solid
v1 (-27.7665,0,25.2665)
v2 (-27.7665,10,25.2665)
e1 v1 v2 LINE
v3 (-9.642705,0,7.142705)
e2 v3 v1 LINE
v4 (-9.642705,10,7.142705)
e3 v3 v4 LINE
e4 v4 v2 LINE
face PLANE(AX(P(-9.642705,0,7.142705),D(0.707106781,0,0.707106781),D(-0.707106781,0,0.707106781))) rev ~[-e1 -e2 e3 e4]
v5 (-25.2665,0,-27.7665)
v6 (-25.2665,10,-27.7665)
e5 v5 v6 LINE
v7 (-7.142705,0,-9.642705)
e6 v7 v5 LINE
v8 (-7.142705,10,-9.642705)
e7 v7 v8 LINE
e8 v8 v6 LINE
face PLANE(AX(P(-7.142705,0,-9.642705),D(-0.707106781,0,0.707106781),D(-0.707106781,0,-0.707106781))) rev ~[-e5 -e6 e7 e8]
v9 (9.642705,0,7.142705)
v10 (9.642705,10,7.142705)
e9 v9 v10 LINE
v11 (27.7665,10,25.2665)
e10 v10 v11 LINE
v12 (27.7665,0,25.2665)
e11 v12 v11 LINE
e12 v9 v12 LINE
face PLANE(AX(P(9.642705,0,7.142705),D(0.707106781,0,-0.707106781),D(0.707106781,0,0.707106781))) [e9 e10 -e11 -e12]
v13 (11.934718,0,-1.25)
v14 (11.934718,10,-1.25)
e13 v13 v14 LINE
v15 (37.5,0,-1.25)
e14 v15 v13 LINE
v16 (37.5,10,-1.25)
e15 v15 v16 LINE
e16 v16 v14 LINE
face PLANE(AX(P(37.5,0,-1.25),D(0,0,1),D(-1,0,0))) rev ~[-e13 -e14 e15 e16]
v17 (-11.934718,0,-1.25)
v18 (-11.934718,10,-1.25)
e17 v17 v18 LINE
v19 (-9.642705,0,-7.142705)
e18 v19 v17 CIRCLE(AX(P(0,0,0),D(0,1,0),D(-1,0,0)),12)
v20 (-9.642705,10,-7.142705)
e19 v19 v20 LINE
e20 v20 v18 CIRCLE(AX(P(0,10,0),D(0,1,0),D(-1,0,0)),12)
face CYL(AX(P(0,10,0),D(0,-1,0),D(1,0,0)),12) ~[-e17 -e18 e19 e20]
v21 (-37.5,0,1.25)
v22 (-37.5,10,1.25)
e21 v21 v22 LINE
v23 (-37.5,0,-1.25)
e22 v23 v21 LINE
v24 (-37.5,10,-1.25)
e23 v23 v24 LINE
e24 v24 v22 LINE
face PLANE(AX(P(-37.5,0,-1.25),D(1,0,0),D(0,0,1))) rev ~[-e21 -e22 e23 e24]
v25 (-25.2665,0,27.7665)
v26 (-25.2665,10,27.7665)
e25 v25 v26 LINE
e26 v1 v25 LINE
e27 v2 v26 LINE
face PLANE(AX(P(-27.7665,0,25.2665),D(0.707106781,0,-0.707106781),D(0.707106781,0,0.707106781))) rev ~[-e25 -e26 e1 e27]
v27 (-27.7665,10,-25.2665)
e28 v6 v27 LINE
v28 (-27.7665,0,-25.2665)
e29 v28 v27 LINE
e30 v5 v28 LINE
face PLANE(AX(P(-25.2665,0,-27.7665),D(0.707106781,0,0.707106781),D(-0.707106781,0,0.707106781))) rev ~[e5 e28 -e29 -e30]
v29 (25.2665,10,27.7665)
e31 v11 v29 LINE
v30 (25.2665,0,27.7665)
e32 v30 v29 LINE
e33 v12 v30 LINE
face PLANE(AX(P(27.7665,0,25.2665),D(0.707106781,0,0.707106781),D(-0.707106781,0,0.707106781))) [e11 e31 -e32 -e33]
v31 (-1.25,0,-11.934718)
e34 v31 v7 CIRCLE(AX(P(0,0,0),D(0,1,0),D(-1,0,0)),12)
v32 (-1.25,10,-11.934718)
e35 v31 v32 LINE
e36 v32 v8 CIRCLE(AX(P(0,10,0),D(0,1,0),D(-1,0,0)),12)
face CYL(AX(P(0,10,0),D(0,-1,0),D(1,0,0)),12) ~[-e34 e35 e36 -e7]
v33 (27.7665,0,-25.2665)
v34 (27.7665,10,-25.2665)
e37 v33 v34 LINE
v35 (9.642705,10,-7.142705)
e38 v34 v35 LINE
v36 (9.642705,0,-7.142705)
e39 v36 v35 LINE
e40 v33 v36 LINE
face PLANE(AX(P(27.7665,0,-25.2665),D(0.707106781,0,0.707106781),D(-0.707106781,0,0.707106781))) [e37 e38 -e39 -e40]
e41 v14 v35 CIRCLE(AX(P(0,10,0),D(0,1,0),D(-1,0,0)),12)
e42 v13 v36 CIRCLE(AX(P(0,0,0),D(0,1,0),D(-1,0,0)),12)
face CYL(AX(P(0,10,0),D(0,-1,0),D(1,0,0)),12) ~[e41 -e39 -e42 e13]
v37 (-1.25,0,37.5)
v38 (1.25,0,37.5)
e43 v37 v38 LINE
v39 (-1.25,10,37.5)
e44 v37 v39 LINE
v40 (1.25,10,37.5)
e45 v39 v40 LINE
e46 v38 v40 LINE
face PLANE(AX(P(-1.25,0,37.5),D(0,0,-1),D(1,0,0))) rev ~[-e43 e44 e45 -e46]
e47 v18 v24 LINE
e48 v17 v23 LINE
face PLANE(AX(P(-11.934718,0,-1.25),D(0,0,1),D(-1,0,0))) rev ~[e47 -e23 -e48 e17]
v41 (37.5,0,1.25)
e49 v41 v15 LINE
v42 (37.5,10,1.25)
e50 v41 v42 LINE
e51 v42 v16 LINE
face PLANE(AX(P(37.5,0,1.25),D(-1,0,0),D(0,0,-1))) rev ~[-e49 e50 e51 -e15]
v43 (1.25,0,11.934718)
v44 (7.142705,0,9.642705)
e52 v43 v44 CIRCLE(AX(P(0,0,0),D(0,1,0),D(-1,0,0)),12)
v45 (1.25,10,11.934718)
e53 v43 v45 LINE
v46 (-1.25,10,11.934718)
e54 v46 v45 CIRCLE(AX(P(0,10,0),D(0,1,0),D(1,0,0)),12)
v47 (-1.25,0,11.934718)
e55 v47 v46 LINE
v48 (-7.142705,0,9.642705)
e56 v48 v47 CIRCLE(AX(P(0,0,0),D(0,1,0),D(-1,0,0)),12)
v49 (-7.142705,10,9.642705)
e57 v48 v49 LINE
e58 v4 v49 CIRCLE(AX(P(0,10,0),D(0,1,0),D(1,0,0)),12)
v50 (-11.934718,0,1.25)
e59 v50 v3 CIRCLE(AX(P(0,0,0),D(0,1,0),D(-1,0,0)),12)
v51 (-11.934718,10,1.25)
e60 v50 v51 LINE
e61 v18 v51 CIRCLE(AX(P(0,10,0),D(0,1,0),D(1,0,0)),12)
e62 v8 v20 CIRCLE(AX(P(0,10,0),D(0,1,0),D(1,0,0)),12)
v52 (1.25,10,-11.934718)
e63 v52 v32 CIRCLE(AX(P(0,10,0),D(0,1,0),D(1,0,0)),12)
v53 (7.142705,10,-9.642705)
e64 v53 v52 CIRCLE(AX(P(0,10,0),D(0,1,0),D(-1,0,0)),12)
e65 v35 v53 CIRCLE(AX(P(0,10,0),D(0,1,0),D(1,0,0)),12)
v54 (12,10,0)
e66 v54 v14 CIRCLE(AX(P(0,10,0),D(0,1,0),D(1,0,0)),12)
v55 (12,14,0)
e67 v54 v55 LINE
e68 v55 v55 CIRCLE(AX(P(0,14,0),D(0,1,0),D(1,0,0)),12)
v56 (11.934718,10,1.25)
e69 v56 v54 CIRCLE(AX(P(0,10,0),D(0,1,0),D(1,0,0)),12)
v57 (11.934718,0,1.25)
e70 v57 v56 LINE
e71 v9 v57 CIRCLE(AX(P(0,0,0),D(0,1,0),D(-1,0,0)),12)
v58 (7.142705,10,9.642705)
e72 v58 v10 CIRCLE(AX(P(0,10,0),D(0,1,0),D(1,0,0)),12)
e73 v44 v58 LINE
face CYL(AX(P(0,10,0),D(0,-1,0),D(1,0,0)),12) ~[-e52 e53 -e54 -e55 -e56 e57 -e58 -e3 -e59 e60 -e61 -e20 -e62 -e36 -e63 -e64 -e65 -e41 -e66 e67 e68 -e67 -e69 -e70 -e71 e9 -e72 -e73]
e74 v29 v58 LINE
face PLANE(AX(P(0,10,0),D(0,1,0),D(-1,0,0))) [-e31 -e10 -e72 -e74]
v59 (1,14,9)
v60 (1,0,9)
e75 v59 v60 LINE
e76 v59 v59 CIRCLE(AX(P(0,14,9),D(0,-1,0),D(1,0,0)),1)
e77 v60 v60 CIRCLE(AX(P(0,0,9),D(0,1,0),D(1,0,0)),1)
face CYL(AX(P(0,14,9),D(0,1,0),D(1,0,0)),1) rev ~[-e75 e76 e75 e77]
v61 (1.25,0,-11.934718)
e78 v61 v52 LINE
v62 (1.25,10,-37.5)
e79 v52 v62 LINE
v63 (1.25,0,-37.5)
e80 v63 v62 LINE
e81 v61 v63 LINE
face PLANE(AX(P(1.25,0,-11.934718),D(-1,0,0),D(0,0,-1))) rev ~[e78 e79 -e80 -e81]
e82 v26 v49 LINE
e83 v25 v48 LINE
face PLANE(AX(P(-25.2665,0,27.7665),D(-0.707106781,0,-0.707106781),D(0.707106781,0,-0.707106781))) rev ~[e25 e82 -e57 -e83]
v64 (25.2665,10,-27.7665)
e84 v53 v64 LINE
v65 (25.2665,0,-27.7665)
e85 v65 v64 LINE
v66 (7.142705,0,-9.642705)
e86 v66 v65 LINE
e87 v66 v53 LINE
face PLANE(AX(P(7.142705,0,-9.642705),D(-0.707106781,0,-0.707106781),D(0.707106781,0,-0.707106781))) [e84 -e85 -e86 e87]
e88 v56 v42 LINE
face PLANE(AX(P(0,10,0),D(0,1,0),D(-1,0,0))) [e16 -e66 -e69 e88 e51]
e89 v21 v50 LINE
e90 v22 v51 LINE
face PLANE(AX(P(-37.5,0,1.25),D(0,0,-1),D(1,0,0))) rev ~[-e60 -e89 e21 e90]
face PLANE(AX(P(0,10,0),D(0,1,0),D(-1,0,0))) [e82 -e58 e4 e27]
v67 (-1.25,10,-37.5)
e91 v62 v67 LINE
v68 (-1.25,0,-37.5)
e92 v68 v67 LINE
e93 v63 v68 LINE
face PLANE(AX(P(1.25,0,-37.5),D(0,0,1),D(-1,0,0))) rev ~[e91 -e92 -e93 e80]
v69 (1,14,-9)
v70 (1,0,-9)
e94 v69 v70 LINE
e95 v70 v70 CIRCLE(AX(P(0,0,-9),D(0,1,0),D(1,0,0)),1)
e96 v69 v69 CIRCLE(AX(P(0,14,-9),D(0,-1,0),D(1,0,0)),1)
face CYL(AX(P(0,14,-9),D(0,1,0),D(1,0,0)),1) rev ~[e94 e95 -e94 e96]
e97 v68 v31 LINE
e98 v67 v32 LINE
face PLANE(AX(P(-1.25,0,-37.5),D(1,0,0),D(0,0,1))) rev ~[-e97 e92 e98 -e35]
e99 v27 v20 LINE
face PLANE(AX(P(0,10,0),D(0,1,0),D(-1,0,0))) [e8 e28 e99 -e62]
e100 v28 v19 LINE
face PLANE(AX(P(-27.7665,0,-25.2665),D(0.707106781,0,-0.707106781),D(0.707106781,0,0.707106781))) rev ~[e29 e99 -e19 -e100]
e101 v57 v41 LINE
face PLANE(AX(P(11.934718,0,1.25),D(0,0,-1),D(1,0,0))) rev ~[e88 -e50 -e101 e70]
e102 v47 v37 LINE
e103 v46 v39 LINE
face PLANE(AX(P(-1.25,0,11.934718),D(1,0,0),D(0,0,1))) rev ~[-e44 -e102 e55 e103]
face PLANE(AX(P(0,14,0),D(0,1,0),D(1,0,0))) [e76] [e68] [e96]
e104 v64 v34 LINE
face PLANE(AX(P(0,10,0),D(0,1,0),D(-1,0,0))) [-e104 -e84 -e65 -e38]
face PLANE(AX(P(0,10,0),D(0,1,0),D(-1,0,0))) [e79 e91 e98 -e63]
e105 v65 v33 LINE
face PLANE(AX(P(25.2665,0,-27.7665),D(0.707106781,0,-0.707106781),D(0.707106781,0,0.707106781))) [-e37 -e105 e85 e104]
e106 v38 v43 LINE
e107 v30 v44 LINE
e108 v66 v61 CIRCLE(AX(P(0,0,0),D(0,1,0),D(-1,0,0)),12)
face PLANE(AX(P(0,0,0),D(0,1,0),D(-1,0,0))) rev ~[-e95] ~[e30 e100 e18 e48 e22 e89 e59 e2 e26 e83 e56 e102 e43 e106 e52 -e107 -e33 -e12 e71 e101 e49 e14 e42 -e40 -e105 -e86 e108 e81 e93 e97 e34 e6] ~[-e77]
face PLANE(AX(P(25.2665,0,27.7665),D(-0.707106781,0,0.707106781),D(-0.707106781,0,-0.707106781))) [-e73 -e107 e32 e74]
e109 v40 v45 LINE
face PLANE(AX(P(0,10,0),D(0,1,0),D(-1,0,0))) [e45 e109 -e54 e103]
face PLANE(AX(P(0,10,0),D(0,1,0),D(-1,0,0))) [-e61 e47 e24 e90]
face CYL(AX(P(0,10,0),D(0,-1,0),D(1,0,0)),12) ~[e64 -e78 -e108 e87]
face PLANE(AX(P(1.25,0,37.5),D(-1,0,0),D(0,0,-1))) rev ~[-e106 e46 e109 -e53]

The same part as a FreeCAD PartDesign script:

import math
import FreeCAD as App
import Part
import Sketcher
Q = App.Units.Quantity

doc = App.newDocument("Part")
body = doc.addObject("PartDesign::Body", "Body")

sketch1 = body.newObject("Sketcher::SketchObject", "Sketch")
sketch1.AttachmentSupport = (doc.getObject("XZ_Plane"), [""])
sketch1.MapMode = "FlatFace"
sketch1.addGeometry(Part.LineSegment(App.Vector(-11.9, -1.2, 0), App.Vector(-37.5, -1.2, 0)), False)
sketch1.addGeometry(Part.LineSegment(App.Vector(-37.5, -1.2, 0), App.Vector(-37.5, 1.2, 0)), False)
sketch1.addGeometry(Part.LineSegment(App.Vector(-37.5, 1.2, 0), App.Vector(-11.9, 1.2, 0)), False)
sketch1.addGeometry(Part.ArcOfCircle(Part.Circle(App.Vector(0, 0, 0), App.Vector(0, 0, 1), 12), math.radians(143), math.radians(174)), False)
sketch1.addGeometry(Part.LineSegment(App.Vector(-9.6, 7.1, 0), App.Vector(-27.8, 25.3, 0)), False)
sketch1.addGeometry(Part.LineSegment(App.Vector(-27.8, 25.3, 0), App.Vector(-25.3, 27.8, 0)), False)
sketch1.addGeometry(Part.LineSegment(App.Vector(-25.3, 27.8, 0), App.Vector(-7.1, 9.6, 0)), False)
sketch1.addGeometry(Part.ArcOfCircle(Part.Circle(App.Vector(0, 0, 0), App.Vector(0, 0, 1), 12), math.radians(96), math.radians(127)), False)
sketch1.addGeometry(Part.LineSegment(App.Vector(-1.2, 11.9, 0), App.Vector(-1.2, 37.5, 0)), False)
sketch1.addGeometry(Part.LineSegment(App.Vector(-1.2, 37.5, 0), App.Vector(1.2, 37.5, 0)), False)
sketch1.addGeometry(Part.LineSegment(App.Vector(1.2, 37.5, 0), App.Vector(1.2, 11.9, 0)), False)
sketch1.addGeometry(Part.ArcOfCircle(Part.Circle(App.Vector(0, 0, 0), App.Vector(0, 0, 1), 12), math.radians(53), math.radians(84)), False)
sketch1.addGeometry(Part.LineSegment(App.Vector(7.1, 9.6, 0), App.Vector(25.3, 27.8, 0)), False)
sketch1.addGeometry(Part.LineSegment(App.Vector(25.3, 27.8, 0), App.Vector(27.8, 25.3, 0)), False)
sketch1.addGeometry(Part.LineSegment(App.Vector(27.8, 25.3, 0), App.Vector(9.6, 7.1, 0)), False)
sketch1.addGeometry(Part.ArcOfCircle(Part.Circle(App.Vector(0, 0, 0), App.Vector(0, 0, 1), 12), math.radians(6), math.radians(37)), False)
sketch1.addGeometry(Part.LineSegment(App.Vector(11.9, 1.2, 0), App.Vector(37.5, 1.2, 0)), False)
sketch1.addGeometry(Part.LineSegment(App.Vector(37.5, 1.2, 0), App.Vector(37.5, -1.2, 0)), False)
sketch1.addGeometry(Part.LineSegment(App.Vector(37.5, -1.2, 0), App.Vector(11.9, -1.2, 0)), False)
sketch1.addGeometry(Part.ArcOfCircle(Part.Circle(App.Vector(0, 0, 0), App.Vector(0, 0, 1), 12), math.radians(-37), math.radians(-6)), False)
sketch1.addGeometry(Part.LineSegment(App.Vector(9.6, -7.1, 0), App.Vector(27.8, -25.3, 0)), False)
sketch1.addGeometry(Part.LineSegment(App.Vector(27.8, -25.3, 0), App.Vector(25.3, -27.8, 0)), False)
sketch1.addGeometry(Part.LineSegment(App.Vector(25.3, -27.8, 0), App.Vector(7.1, -9.6, 0)), False)
sketch1.addGeometry(Part.ArcOfCircle(Part.Circle(App.Vector(0, 0, 0), App.Vector(0, 0, 1), 12), math.radians(-84), math.radians(-53)), False)
sketch1.addGeometry(Part.LineSegment(App.Vector(1.2, -11.9, 0), App.Vector(1.2, -37.5, 0)), False)
sketch1.addGeometry(Part.LineSegment(App.Vector(1.2, -37.5, 0), App.Vector(-1.2, -37.5, 0)), False)
sketch1.addGeometry(Part.LineSegment(App.Vector(-1.2, -37.5, 0), App.Vector(-1.2, -11.9, 0)), False)
sketch1.addGeometry(Part.ArcOfCircle(Part.Circle(App.Vector(0, 0, 0), App.Vector(0, 0, 1), 12), math.radians(-127), math.radians(-96)), False)
sketch1.addGeometry(Part.LineSegment(App.Vector(-7.1, -9.6, 0), App.Vector(-25.3, -27.8, 0)), False)
sketch1.addGeometry(Part.LineSegment(App.Vector(-25.3, -27.8, 0), App.Vector(-27.8, -25.3, 0)), False)
sketch1.addGeometry(Part.LineSegment(App.Vector(-27.8, -25.3, 0), App.Vector(-9.6, -7.1, 0)), False)
sketch1.addGeometry(Part.ArcOfCircle(Part.Circle(App.Vector(0, 0, 0), App.Vector(0, 0, 1), 12), math.radians(-174), math.radians(-143)), False)
sketch1.addConstraint(Sketcher.Constraint("Coincident", 0, 2, 1, 1))
sketch1.addConstraint(Sketcher.Constraint("Coincident", 1, 2, 2, 1))
sketch1.addConstraint(Sketcher.Constraint("Coincident", 2, 2, 3, 2))
sketch1.addConstraint(Sketcher.Constraint("Coincident", 3, 1, 4, 1))
sketch1.addConstraint(Sketcher.Constraint("Coincident", 4, 2, 5, 1))
sketch1.addConstraint(Sketcher.Constraint("Coincident", 5, 2, 6, 1))
sketch1.addConstraint(Sketcher.Constraint("Coincident", 6, 2, 7, 2))
sketch1.addConstraint(Sketcher.Constraint("Coincident", 7, 1, 8, 1))
sketch1.addConstraint(Sketcher.Constraint("Coincident", 8, 2, 9, 1))
sketch1.addConstraint(Sketcher.Constraint("Coincident", 9, 2, 10, 1))
sketch1.addConstraint(Sketcher.Constraint("Coincident", 10, 2, 11, 2))
sketch1.addConstraint(Sketcher.Constraint("Coincident", 11, 1, 12, 1))
sketch1.addConstraint(Sketcher.Constraint("Coincident", 12, 2, 13, 1))
sketch1.addConstraint(Sketcher.Constraint("Coincident", 13, 2, 14, 1))
sketch1.addConstraint(Sketcher.Constraint("Coincident", 14, 2, 15, 2))
sketch1.addConstraint(Sketcher.Constraint("Coincident", 15, 1, 16, 1))
sketch1.addConstraint(Sketcher.Constraint("Coincident", 16, 2, 17, 1))
sketch1.addConstraint(Sketcher.Constraint("Coincident", 17, 2, 18, 1))
sketch1.addConstraint(Sketcher.Constraint("Coincident", 18, 2, 19, 2))
sketch1.addConstraint(Sketcher.Constraint("Coincident", 19, 1, 20, 1))
sketch1.addConstraint(Sketcher.Constraint("Coincident", 20, 2, 21, 1))
sketch1.addConstraint(Sketcher.Constraint("Coincident", 21, 2, 22, 1))
sketch1.addConstraint(Sketcher.Constraint("Coincident", 22, 2, 23, 2))
sketch1.addConstraint(Sketcher.Constraint("Coincident", 23, 1, 24, 1))
sketch1.addConstraint(Sketcher.Constraint("Coincident", 24, 2, 25, 1))
sketch1.addConstraint(Sketcher.Constraint("Coincident", 25, 2, 26, 1))
sketch1.addConstraint(Sketcher.Constraint("Coincident", 26, 2, 27, 2))
sketch1.addConstraint(Sketcher.Constraint("Coincident", 27, 1, 28, 1))
sketch1.addConstraint(Sketcher.Constraint("Coincident", 28, 2, 29, 1))
sketch1.addConstraint(Sketcher.Constraint("Coincident", 29, 2, 30, 1))
sketch1.addConstraint(Sketcher.Constraint("Coincident", 30, 2, 31, 2))
sketch1.addConstraint(Sketcher.Constraint("Coincident", 31, 1, 0, 1))
sketch1.addConstraint(Sketcher.Constraint("Horizontal", 0))
sketch1.addConstraint(Sketcher.Constraint("Vertical", 1))
sketch1.addConstraint(Sketcher.Constraint("Horizontal", 2))
sketch1.addConstraint(Sketcher.Constraint("Vertical", 8))
sketch1.addConstraint(Sketcher.Constraint("Horizontal", 9))
sketch1.addConstraint(Sketcher.Constraint("Vertical", 10))
sketch1.addConstraint(Sketcher.Constraint("Horizontal", 16))
sketch1.addConstraint(Sketcher.Constraint("Vertical", 17))
sketch1.addConstraint(Sketcher.Constraint("Horizontal", 18))
sketch1.addConstraint(Sketcher.Constraint("Vertical", 24))
sketch1.addConstraint(Sketcher.Constraint("Horizontal", 25))
sketch1.addConstraint(Sketcher.Constraint("Vertical", 26))
sketch1.addConstraint(Sketcher.Constraint("Coincident", 3, 3, -1, 1))
sketch1.addConstraint(Sketcher.Constraint("Coincident", 7, 3, -1, 1))
sketch1.addConstraint(Sketcher.Constraint("Coincident", 11, 3, -1, 1))
sketch1.addConstraint(Sketcher.Constraint("Coincident", 15, 3, -1, 1))
sketch1.addConstraint(Sketcher.Constraint("Coincident", 19, 3, -1, 1))
sketch1.addConstraint(Sketcher.Constraint("Coincident", 23, 3, -1, 1))
sketch1.addConstraint(Sketcher.Constraint("Coincident", 27, 3, -1, 1))
sketch1.addConstraint(Sketcher.Constraint("Coincident", 31, 3, -1, 1))
sketch1.addConstraint(Sketcher.Constraint("Equal", 3, 7))
sketch1.addConstraint(Sketcher.Constraint("Equal", 7, 11))
sketch1.addConstraint(Sketcher.Constraint("Equal", 11, 15))
sketch1.addConstraint(Sketcher.Constraint("Equal", 15, 19))
sketch1.addConstraint(Sketcher.Constraint("Equal", 19, 23))
sketch1.addConstraint(Sketcher.Constraint("Equal", 23, 27))
sketch1.addConstraint(Sketcher.Constraint("Equal", 27, 31))
sketch1.addConstraint(Sketcher.Constraint("Symmetric", 0, 2, 16, 2, -1, 1))
sketch1.addConstraint(Sketcher.Constraint("Symmetric", 4, 2, 20, 2, -1, 1))
sketch1.addConstraint(Sketcher.Constraint("Symmetric", 5, 2, 21, 2, -1, 1))
sketch1.addConstraint(Sketcher.Constraint("Symmetric", 8, 2, 24, 2, -1, 1))
sketch1.addConstraint(Sketcher.Constraint("Symmetric", 12, 2, 28, 2, -1, 1))
sketch1.addConstraint(Sketcher.Constraint("Symmetric", 13, 2, 29, 2, -1, 1))
sketch1.addConstraint(Sketcher.Constraint("Symmetric", 5, 2, 12, 2, -2))
sketch1.addConstraint(Sketcher.Constraint("Symmetric", 4, 2, 13, 2, -2))
sketch1.addConstraint(Sketcher.Constraint("Perpendicular", 4, 5))
sketch1.addConstraint(Sketcher.Constraint("Perpendicular", 5, 6))
sketch1.addConstraint(Sketcher.Constraint("Perpendicular", 6, 12))
sketch1.addConstraint(Sketcher.Constraint("Perpendicular", 12, 13))
sketch1.addConstraint(Sketcher.Constraint("Perpendicular", 13, 14))
sketch1.addConstraint(Sketcher.Constraint("Perpendicular", 14, 20))
sketch1.addConstraint(Sketcher.Constraint("Perpendicular", 21, 22))
sketch1.addConstraint(Sketcher.Constraint("Perpendicular", 22, 28))
sketch1.addConstraint(Sketcher.Constraint("Perpendicular", 29, 30))
sketch1.addConstraint(Sketcher.Constraint("Horizontal", 7, 1, 10, 2))
sketch1.addConstraint(Sketcher.Constraint("Horizontal", 2, 2, 15, 1))
sketch1.addConstraint(Sketcher.Constraint("Horizontal", 0, 2, 17, 2))
sketch1.addConstraint(Sketcher.Constraint("Horizontal", 23, 1, 26, 2))
sketch1.addConstraint(Sketcher.Constraint("Equal", 25, 1))
sketch1.addConstraint(Sketcher.Constraint("Equal", 18, 8))
sketch1.addConstraint(Sketcher.Constraint("Equal", 4, 6))
sketch1.addConstraint(Sketcher.Constraint("Radius", 3, Q("12 mm")))
sketch1.addConstraint(Sketcher.Constraint("DistanceX", 9, 1, 9, 2, Q("2.5 mm")))
sketch1.addConstraint(Sketcher.Constraint("DistanceX", 0, 2, -1, 1, Q("37.5 mm")))
sketch1.addConstraint(Sketcher.Constraint("DistanceX", 4, 2, 5, 2, Q("2.5 mm")))
sketch1.addConstraint(Sketcher.Constraint("Distance", 4, Q("25.631 mm")))
pad1 = body.newObject("PartDesign::Pad", "Pad")
pad1.Profile = sketch1
pad1.Length = 10
pad1.Reversed = True

sketch2 = body.newObject("Sketcher::SketchObject", "Sketch001")
sketch2.AttachmentSupport = (doc.getObject("XZ_Plane"), [""])
sketch2.MapMode = "FlatFace"
sketch2.AttachmentOffset = App.Placement(App.Vector(0, 0, -10), App.Rotation())
sketch2.addGeometry(Part.Circle(App.Vector(0, 0, 0), App.Vector(0, 0, 1), 12), False)
sketch2.addConstraint(Sketcher.Constraint("Coincident", 0, 3, -1, 1))
sketch2.addConstraint(Sketcher.Constraint("Diameter", 0, Q("24 mm")))
pad2 = body.newObject("PartDesign::Pad", "Pad001")
pad2.Profile = sketch2
pad2.Length = 4
pad2.Reversed = True

sketch3 = body.newObject("Sketcher::SketchObject", "Sketch002")
sketch3.AttachmentSupport = (doc.getObject("XZ_Plane"), [""])
sketch3.MapMode = "FlatFace"
sketch3.AttachmentOffset = App.Placement(App.Vector(0, 0, -14), App.Rotation())
sketch3.addGeometry(Part.Circle(App.Vector(0, -9, 0), App.Vector(0, 0, 1), 1), False)
sketch3.addGeometry(Part.Circle(App.Vector(0, 9, 0), App.Vector(0, 0, 1), 1), False)
sketch3.addConstraint(Sketcher.Constraint("Equal", 0, 1))
sketch3.addConstraint(Sketcher.Constraint("Symmetric", 0, 3, 1, 3, -1, 1))
sketch3.addConstraint(Sketcher.Constraint("PointOnObject", 0, 3, -2))
sketch3.addConstraint(Sketcher.Constraint("Diameter", 0, Q("2 mm")))
sketch3.addConstraint(Sketcher.Constraint("DistanceY", 0, 3, -1, 1, Q("9 mm")))
pocket1 = body.newObject("PartDesign::Pocket", "Pocket")
pocket1.Profile = sketch3
pocket1.Length = 20
pocket1.Reversed = True

doc.recompute()
